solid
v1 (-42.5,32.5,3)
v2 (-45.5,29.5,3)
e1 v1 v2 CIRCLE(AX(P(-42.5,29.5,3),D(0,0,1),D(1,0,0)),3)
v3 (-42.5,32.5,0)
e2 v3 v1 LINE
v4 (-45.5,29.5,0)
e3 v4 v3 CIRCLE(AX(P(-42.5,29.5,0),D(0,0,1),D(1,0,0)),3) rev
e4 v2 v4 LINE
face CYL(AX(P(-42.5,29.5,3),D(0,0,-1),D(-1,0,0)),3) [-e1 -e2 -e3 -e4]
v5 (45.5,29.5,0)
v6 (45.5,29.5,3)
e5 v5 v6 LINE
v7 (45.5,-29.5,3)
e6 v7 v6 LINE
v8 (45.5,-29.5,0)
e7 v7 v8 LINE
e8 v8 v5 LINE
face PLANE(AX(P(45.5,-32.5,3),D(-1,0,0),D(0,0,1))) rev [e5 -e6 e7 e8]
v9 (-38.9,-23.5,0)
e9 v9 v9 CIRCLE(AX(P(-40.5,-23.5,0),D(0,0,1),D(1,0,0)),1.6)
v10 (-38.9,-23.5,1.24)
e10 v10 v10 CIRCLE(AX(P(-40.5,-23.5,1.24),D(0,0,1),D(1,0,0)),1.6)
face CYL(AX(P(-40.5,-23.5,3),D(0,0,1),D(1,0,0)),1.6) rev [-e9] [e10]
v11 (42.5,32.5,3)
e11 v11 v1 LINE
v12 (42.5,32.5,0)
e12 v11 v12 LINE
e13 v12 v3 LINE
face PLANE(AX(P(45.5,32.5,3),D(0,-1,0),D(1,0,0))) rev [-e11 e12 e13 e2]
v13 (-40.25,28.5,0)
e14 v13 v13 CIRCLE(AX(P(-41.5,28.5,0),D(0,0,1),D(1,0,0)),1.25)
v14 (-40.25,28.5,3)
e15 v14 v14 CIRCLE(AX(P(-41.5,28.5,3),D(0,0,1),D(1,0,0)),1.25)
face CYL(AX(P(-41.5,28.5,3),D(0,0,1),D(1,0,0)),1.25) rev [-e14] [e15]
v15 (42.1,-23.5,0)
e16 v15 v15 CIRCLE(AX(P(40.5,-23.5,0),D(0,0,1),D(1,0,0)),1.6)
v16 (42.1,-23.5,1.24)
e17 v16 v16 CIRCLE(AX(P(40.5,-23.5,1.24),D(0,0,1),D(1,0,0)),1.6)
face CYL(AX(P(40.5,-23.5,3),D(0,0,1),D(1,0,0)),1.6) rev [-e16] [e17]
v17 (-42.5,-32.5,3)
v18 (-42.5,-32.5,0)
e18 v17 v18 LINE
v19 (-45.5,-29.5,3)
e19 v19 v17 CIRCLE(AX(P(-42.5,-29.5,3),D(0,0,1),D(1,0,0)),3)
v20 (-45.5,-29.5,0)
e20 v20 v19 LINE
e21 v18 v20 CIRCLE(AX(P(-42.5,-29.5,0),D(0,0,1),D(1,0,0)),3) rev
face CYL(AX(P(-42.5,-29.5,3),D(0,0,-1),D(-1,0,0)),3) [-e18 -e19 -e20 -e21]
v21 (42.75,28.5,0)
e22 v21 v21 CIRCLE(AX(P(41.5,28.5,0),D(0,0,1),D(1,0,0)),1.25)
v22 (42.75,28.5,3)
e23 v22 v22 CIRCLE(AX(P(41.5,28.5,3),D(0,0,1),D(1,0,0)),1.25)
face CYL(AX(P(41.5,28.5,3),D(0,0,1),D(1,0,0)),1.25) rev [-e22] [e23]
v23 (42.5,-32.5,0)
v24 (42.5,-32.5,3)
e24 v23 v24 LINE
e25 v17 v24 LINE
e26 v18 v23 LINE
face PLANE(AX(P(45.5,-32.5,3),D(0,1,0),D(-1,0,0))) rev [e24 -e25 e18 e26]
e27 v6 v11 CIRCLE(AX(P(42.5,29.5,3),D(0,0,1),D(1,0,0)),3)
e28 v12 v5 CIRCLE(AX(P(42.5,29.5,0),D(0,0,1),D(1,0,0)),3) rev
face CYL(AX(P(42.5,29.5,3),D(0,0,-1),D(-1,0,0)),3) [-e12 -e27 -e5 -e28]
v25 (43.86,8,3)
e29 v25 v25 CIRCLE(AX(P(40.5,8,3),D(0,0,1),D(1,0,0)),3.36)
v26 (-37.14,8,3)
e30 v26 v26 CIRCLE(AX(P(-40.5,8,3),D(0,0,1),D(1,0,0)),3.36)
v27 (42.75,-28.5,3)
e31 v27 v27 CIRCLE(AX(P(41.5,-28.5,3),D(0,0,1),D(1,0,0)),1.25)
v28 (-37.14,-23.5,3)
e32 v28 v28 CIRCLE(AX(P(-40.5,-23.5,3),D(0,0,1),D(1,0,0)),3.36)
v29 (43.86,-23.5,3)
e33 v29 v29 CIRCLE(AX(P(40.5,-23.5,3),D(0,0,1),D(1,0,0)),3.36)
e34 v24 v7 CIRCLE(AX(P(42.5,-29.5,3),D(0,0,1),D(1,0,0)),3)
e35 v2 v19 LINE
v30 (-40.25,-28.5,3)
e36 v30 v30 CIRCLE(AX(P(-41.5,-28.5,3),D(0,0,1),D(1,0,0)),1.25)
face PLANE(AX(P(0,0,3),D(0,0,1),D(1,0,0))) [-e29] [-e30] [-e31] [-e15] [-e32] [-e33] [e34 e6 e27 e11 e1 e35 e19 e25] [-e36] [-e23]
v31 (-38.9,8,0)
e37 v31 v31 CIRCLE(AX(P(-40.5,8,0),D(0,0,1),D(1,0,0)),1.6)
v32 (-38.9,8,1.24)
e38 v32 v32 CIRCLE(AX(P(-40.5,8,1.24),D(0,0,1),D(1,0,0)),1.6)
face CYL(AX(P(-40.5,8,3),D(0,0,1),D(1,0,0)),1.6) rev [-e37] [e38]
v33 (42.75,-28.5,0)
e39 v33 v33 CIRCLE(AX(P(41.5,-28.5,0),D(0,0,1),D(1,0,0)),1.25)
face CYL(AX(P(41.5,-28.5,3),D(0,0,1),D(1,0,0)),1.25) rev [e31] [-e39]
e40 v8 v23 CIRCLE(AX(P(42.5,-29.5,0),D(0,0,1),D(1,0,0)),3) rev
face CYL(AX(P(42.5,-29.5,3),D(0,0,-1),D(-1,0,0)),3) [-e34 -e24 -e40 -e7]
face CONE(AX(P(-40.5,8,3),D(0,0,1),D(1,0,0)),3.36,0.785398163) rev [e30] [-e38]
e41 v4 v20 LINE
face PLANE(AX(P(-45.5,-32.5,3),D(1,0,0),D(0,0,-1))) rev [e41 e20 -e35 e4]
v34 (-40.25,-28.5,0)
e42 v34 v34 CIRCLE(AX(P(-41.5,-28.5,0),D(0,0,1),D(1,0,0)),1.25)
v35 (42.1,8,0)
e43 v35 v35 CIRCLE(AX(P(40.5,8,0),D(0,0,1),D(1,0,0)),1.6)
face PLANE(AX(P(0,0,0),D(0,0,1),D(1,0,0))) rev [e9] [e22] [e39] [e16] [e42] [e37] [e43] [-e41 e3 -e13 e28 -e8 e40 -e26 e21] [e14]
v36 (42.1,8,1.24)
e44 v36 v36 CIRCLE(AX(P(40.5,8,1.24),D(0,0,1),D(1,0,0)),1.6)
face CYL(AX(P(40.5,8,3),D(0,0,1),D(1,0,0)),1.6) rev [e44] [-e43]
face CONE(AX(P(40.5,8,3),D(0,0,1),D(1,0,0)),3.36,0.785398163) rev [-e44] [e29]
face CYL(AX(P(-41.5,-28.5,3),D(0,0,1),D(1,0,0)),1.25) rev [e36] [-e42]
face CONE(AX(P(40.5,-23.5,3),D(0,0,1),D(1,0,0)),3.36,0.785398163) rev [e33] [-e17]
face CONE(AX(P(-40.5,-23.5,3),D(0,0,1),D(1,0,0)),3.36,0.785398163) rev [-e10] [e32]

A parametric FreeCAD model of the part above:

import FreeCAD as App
import Part
import Sketcher
from FreeCAD import Vector
Q = App.Units.Quantity


def edges_at(feature, points):
    """Names of the edges that pass closest to the given points."""
    edges = feature.Shape.Edges
    near = lambda p: min(range(len(edges)), key=lambda i: edges[i].distToShape(Part.Vertex(*p))[0])
    return sorted({f"Edge{near(p) + 1}" for p in points})


def add_polygon(sketch, points):
    """Adds a closed chain of lines whose ends are joined by coincident constraints."""
    first, n = sketch.GeometryCount, len(points)
    for a, b in zip(points, points[1:] + points[:1]):
        sketch.addGeometry(Part.LineSegment(App.Vector(*a, 0), App.Vector(*b, 0)), False)
    for i in range(n):
        sketch.addConstraint(Sketcher.Constraint("Coincident", first + i, 2, first + (i + 1) % n, 1))

doc = App.newDocument("Part")
body = doc.addObject("PartDesign::Body", "Body")

# Sketch on XY plane
sketch1 = body.newObject("Sketcher::SketchObject", "Sketch")
sketch1.AttachmentSupport = (doc.getObject("XY_Plane"), [""])
sketch1.MapMode = "FlatFace"
add_polygon(sketch1, [(-46, 32), (-46, -32), (46, -32), (46, 32)])  # lines 0-3
sketch1.addConstraint([
    Sketcher.Constraint("Vertical", 0),
    Sketcher.Constraint("Horizontal", 1),
    Sketcher.Constraint("Vertical", 2),
    Sketcher.Constraint("Horizontal", 3),
    Sketcher.Constraint("Symmetric", 0, 2, 2, 2, -1, 1),
    Sketcher.Constraint("DistanceX", 1, 1, 1, 2, Q("91 mm")),
    Sketcher.Constraint("DistanceY", 0, 2, 0, 1, Q("65 mm")),
])
pad1 = body.newObject("PartDesign::Pad", "Pad")
pad1.Profile = sketch1
pad1.Length = 3

# Sketch on XY plane
sketch2 = body.newObject("Sketcher::SketchObject", "Sketch001")
sketch2.AttachmentSupport = (doc.getObject("XY_Plane"), [""])
sketch2.MapMode = "FlatFace"
sketch2.AttachmentOffset = App.Placement(Vector(0, 0, 3), App.Rotation())
sketch2.addGeometry([
    Part.Circle(Vector(-41.5, 28.5, 0), Vector(0, 0, 1), 1.2),
    Part.Circle(Vector(41.5, 28.5, 0), Vector(0, 0, 1), 1.2),
    Part.Circle(Vector(41.5, -28.5, 0), Vector(0, 0, 1), 1.2),
    Part.Circle(Vector(-41.5, -28.5, 0), Vector(0, 0, 1), 1.2),
], False)
sketch2.addConstraint([
    Sketcher.Constraint("Equal", 0, 1),
    Sketcher.Constraint("Equal", 1, 2),
    Sketcher.Constraint("Equal", 2, 3),
    Sketcher.Constraint("Symmetric", 0, 3, 2, 3, -1, 1),
    Sketcher.Constraint("Symmetric", 1, 3, 3, 3, -1, 1),
    Sketcher.Constraint("Symmetric", 0, 3, 1, 3, -2),
    Sketcher.Constraint("Diameter", 0, Q("2.5 mm")),
    Sketcher.Constraint("DistanceX", 0, 3, 1, 3, Q("83 mm")),
    Sketcher.Constraint("DistanceY", 2, 3, 1, 3, Q("57 mm")),
])
doc.recompute()
hole = body.newObject("PartDesign::Hole", "Hole")
hole.Profile = sketch2
hole.ThreadType = "None"
hole.Diameter = 2.5
hole.DepthType = "ThroughAll"
doc.recompute()

fillet = body.newObject("PartDesign::Fillet", "Fillet")
fillet.Base = (hole, edges_at(hole, [
    (-45.5, 32.5, 1.5),
    (45.5, 32.5, 1.5),
    (45.5, -32.5, 1.5),
    (-45.5, -32.5, 1.5),
]))
fillet.Radius = 3

# Sketch on YZ plane
sketch3 = body.newObject("Sketcher::SketchObject", "Sketch002")
sketch3.AttachmentSupport = (doc.getObject("YZ_Plane"), [""])
sketch3.MapMode = "FlatFace"
sketch3.AttachmentOffset = App.Placement(Vector(0, 0, -40.5), App.Rotation())
add_polygon(sketch3, [(8, 0), (8, 3), (4.6, 3), (6.4, 1.2), (6.4, 0)])  # lines 0-4
sketch3.addGeometry(Part.LineSegment(Vector(8, 3, 0), Vector(8, 0, 0)), True)  # axis
sketch3.addConstraint([
    Sketcher.Constraint("Vertical", 0),
    Sketcher.Constraint("Horizontal", 1),
    Sketcher.Constraint("Vertical", 3),
    Sketcher.Constraint("Horizontal", 4),
    Sketcher.Constraint("Vertical", 5),
    Sketcher.Constraint("Coincident", 5, 1, 0, 2),
    Sketcher.Constraint("PointOnObject", 3, 2, -1),
    Sketcher.Constraint("PointOnObject", 5, 2, -1),
    Sketcher.Constraint("DistanceY", 0, 1, 0, 2, Q("3 mm")),
    Sketcher.Constraint("Angle", 2, Q("-45 deg")),
    Sketcher.Constraint("DistanceX", 4, 1, 4, 2, Q("1.6 mm")),
    Sketcher.Constraint("DistanceX", -1, 1, 0, 2, Q("8 mm")),
    Sketcher.Constraint("DistanceX", 1, 2, 1, 1, Q("3.36 mm")),
])
groove = body.newObject("PartDesign::Groove", "Groove")
groove.Profile = sketch3
groove.ReferenceAxis = (sketch3, ["Axis0"])
groove.Angle = 360
doc.recompute()

linearpattern = body.newObject("PartDesign::LinearPattern", "LinearPattern")
linearpattern.Originals = [groove]
linearpattern.Direction = (doc.getObject("Y_Axis"), [""])
linearpattern.Mode = "offset"
linearpattern.Offset = 31.5
linearpattern.Occurrences = 2
linearpattern.Reversed = True
body.Tip = linearpattern
doc.recompute()

datumline = body.newObject("PartDesign::Line", "DatumLine")
datumline.Placement = App.Placement(Vector(0, 0, 0), App.Rotation(Vector(0, 0, 1), Vector(0.932004672, -0.362446261, 0)))
linearpattern2 = body.newObject("PartDesign::LinearPattern", "LinearPattern001")
linearpattern2.Originals = [groove]
linearpattern2.Direction = (datumline, [""])
linearpattern2.Mode = "offset"
linearpattern2.Offset = 86.909436
linearpattern2.Occurrences = 2
body.Tip = linearpattern2
doc.recompute()

linearpattern3 = body.newObject("PartDesign::LinearPattern", "LinearPattern002")
linearpattern3.Originals = [groove]
linearpattern3.Direction = (doc.getObject("X_Axis"), [""])
linearpattern3.Mode = "offset"
linearpattern3.Offset = 81
linearpattern3.Occurrences = 2
body.Tip = linearpattern3

doc.recompute()
